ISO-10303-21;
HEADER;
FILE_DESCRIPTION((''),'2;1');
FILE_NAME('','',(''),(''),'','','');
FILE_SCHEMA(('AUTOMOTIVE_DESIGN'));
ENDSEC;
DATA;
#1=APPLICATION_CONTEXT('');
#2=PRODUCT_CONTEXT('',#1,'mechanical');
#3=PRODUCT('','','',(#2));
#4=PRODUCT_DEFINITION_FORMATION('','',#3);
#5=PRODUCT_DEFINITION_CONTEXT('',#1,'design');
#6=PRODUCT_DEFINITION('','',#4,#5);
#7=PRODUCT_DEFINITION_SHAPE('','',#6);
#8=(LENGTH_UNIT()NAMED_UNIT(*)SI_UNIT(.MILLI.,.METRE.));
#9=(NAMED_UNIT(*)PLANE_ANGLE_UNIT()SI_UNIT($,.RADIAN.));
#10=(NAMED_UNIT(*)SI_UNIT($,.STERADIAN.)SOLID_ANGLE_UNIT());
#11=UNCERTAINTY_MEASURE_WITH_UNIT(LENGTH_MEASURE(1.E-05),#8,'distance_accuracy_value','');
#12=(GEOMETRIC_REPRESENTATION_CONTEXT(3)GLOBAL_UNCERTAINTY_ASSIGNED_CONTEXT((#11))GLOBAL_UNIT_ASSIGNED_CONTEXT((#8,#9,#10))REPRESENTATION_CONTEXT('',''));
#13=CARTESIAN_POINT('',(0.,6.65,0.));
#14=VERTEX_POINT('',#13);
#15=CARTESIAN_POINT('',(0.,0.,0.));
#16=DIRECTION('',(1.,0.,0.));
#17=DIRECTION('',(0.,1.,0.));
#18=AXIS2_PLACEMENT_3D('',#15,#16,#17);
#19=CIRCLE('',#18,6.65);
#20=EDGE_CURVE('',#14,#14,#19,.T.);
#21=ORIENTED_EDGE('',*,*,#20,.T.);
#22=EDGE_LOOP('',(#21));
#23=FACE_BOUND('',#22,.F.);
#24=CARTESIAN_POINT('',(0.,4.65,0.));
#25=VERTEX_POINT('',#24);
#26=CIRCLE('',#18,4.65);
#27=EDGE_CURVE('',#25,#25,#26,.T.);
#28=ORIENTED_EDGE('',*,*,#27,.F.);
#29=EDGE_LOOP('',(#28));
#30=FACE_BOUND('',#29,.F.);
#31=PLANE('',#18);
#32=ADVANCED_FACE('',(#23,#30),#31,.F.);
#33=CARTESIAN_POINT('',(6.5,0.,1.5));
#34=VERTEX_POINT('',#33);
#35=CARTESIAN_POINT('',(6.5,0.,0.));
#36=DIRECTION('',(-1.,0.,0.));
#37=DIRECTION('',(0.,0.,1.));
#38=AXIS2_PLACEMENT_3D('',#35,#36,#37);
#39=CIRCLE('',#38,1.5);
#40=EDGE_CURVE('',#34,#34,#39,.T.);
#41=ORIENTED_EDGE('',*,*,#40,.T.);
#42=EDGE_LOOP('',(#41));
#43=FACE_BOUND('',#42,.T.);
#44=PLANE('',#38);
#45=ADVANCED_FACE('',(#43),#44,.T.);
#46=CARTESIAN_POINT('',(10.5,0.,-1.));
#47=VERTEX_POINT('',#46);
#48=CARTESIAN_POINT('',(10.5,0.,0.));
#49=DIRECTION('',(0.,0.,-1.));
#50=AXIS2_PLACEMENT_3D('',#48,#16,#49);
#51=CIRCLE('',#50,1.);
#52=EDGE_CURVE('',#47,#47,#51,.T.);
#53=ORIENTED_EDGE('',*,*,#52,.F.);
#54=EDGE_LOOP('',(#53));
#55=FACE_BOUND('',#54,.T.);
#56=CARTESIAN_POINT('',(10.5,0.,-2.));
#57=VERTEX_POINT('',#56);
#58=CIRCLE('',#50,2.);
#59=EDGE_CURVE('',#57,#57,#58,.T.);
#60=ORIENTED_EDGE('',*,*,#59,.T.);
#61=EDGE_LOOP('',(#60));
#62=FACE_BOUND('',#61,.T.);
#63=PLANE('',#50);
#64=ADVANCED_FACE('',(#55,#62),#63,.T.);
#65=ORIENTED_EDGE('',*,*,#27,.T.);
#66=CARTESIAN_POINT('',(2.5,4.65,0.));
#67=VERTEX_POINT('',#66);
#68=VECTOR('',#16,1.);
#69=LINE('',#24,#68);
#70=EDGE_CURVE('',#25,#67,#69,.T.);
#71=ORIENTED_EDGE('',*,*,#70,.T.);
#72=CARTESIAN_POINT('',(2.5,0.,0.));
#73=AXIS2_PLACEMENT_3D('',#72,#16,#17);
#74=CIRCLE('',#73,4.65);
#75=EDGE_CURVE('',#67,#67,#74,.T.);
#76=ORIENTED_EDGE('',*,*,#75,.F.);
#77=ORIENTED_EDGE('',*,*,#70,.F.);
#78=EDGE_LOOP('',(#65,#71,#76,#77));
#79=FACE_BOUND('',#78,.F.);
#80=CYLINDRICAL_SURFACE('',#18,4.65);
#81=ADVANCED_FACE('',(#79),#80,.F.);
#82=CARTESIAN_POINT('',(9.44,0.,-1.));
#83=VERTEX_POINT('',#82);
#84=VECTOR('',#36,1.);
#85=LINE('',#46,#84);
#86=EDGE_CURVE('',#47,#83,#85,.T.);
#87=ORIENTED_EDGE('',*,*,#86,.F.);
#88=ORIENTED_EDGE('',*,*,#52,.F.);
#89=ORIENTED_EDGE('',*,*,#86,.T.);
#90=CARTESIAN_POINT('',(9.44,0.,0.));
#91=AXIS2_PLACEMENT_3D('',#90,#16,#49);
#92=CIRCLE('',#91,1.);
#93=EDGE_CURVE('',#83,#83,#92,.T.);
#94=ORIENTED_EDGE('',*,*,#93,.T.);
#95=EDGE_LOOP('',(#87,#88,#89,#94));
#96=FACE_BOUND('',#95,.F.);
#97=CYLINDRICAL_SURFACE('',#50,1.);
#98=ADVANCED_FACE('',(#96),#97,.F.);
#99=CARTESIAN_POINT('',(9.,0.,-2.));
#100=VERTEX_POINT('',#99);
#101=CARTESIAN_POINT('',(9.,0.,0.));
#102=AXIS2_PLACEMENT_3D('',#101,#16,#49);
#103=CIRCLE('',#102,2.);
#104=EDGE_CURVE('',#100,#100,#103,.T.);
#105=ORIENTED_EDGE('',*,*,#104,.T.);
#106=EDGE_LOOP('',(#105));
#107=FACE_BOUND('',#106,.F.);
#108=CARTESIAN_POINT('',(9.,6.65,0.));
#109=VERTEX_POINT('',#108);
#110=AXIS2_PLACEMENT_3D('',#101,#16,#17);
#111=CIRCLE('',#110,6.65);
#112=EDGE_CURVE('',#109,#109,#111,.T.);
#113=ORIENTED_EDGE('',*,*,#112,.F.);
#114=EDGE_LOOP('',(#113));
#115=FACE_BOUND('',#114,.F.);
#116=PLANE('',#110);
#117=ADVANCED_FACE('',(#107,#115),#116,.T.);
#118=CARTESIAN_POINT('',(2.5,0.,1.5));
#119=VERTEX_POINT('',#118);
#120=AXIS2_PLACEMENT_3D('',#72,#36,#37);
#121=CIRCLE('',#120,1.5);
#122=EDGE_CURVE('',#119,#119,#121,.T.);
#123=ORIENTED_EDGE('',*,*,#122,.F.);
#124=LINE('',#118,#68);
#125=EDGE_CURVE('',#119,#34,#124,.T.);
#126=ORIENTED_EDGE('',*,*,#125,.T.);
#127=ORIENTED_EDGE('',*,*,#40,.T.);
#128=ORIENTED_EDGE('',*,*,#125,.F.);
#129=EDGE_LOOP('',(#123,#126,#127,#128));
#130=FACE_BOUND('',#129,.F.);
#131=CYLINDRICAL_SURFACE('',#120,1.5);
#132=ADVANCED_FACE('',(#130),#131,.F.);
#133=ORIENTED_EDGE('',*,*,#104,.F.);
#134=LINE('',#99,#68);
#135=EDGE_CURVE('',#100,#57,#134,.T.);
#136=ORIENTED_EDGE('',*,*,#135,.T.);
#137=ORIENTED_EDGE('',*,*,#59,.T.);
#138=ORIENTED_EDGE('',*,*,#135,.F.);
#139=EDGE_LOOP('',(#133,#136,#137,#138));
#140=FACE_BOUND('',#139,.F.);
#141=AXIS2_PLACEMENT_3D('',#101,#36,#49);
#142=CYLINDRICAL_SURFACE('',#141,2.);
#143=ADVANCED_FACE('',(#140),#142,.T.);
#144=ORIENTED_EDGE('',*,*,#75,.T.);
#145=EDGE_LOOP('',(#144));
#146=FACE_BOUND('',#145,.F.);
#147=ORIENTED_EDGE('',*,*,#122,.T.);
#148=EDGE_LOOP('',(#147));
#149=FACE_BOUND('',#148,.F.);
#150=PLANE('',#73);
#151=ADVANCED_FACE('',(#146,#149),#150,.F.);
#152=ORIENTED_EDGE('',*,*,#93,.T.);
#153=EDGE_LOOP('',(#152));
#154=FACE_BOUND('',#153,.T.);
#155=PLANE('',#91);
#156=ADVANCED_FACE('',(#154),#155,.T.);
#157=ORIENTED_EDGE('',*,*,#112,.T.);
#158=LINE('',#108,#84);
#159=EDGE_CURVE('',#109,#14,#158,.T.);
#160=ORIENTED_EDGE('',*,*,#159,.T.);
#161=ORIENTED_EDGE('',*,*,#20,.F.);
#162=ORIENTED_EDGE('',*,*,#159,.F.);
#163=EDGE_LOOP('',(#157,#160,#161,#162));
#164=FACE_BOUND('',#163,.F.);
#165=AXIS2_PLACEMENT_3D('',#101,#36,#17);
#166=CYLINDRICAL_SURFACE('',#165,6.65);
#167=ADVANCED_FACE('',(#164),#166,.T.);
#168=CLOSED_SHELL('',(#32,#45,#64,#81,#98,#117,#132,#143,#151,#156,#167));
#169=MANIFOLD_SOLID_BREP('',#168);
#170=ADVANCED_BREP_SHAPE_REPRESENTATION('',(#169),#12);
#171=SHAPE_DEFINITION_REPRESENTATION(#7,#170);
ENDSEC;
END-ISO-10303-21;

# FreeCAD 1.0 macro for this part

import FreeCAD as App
import Part
import Sketcher

V = App.Vector


def add_polygon(sketch, points):
    """Adds a closed chain of lines whose ends are joined by coincident constraints."""
    first, n = sketch.GeometryCount, len(points)
    for a, b in zip(points, points[1:] + points[:1]):
        sketch.addGeometry(Part.LineSegment(App.Vector(*a, 0), App.Vector(*b, 0)), False)
    for i in range(n):
        sketch.addConstraint(Sketcher.Constraint("Coincident", first + i, 2, first + (i + 1) % n, 1))

doc = App.newDocument("Part")
params = doc.addObject("Spreadsheet::Sheet", "Params")
for row, (alias, value) in enumerate([
    ("sketch1_width", "9 mm"),
    ("sketch1_height", "2 mm"),
    ("sketch1_width2", "2.5 mm"),
    ("sketch1_height2", "6.65 mm"),
    ("revolution_angle", "360 deg"),
    ("sketch2_diameter", "4 mm"),
    ("pad1_length", "1.5 mm"),
    ("sketch3_diameter", "3 mm"),
    ("pocket1_length", "4 mm"),
    ("sketch4_diameter", "2 mm"),
    ("pocket2_length", "1.06 mm"),
], start=1):
    params.set(f"A{row}", alias)
    params.set(f"B{row}", "=" + value)
    params.setAlias(f"B{row}", alias)

body = doc.addObject("PartDesign::Body", "Body")

sketch1 = body.newObject("Sketcher::SketchObject", "Sketch")
sketch1.AttachmentSupport = (doc.getObject("XY_Plane"), [""])
sketch1.MapMode = "FlatFace"
add_polygon(sketch1, [(2.5, 4.7), (2.5, 0), (9, 0), (9, 6.7), (0, 6.7), (0, 4.7)])
sketch1.addConstraint(Sketcher.Constraint("Vertical", 0))
sketch1.addConstraint(Sketcher.Constraint("Horizontal", 1))
sketch1.addConstraint(Sketcher.Constraint("Vertical", 2))
sketch1.addConstraint(Sketcher.Constraint("Horizontal", 3))
sketch1.addConstraint(Sketcher.Constraint("Vertical", 4))
sketch1.addConstraint(Sketcher.Constraint("Horizontal", 5))
sketch1.addConstraint(Sketcher.Constraint("PointOnObject", 0, 2, -1))
sketch1.addConstraint(Sketcher.Constraint("PointOnObject", 3, 2, -2))
sketch1.addConstraint(Sketcher.Constraint("DistanceX", 3, 2, 3, 1, 9.0))
sketch1.addConstraint(Sketcher.Constraint("DistanceY", 4, 2, 4, 1, 2.0))
sketch1.addConstraint(Sketcher.Constraint("DistanceX", 5, 1, 5, 2, 2.5))
sketch1.addConstraint(Sketcher.Constraint("DistanceY", 2, 1, 2, 2, 6.65))
sketch1.setExpression("Constraints[14]", "Params.sketch1_width")
sketch1.setExpression("Constraints[15]", "Params.sketch1_height")
sketch1.setExpression("Constraints[16]", "Params.sketch1_width2")
sketch1.setExpression("Constraints[17]", "Params.sketch1_height2")
revolution = body.newObject("PartDesign::Revolution", "Revolution")
revolution.Profile = sketch1
revolution.ReferenceAxis = (sketch1, ["H_Axis"])
revolution.setExpression("Angle", "Params.revolution_angle")

sketch2 = body.newObject("Sketcher::SketchObject", "Sketch001")
sketch2.AttachmentSupport = (doc.getObject("YZ_Plane"), [""])
sketch2.MapMode = "FlatFace"
sketch2.AttachmentOffset = App.Placement(V(0, 0, 9), App.Rotation())
sketch2.addGeometry(Part.Circle(V(0, 0, 0), V(0, 0, 1), 2), False)
sketch2.addConstraint(Sketcher.Constraint("Coincident", 0, 3, -1, 1))
sketch2.addConstraint(Sketcher.Constraint("Diameter", 0, 4.0))
sketch2.setExpression("Constraints[1]", "Params.sketch2_diameter")
pad1 = body.newObject("PartDesign::Pad", "Pad")
pad1.Profile = sketch2
pad1.setExpression("Length", "Params.pad1_length")

sketch3 = body.newObject("Sketcher::SketchObject", "Sketch002")
sketch3.AttachmentSupport = (doc.getObject("YZ_Plane"), [""])
sketch3.MapMode = "FlatFace"
sketch3.AttachmentOffset = App.Placement(V(0, 0, 2.5), App.Rotation())
sketch3.addGeometry(Part.Circle(V(0, 0, 0), V(0, 0, 1), 1.5), False)
sketch3.addConstraint(Sketcher.Constraint("Coincident", 0, 3, -1, 1))
sketch3.addConstraint(Sketcher.Constraint("Diameter", 0, 3.0))
sketch3.setExpression("Constraints[1]", "Params.sketch3_diameter")
pocket1 = body.newObject("PartDesign::Pocket", "Pocket")
pocket1.Profile = sketch3
pocket1.setExpression("Length", "Params.pocket1_length")
pocket1.Reversed = True

sketch4 = body.newObject("Sketcher::SketchObject", "Sketch003")
sketch4.AttachmentSupport = (doc.getObject("YZ_Plane"), [""])
sketch4.MapMode = "FlatFace"
sketch4.AttachmentOffset = App.Placement(V(0, 0, 10.5), App.Rotation())
sketch4.addGeometry(Part.Circle(V(0, 0, 0), V(0, 0, 1), 1), False)
sketch4.addConstraint(Sketcher.Constraint("Coincident", 0, 3, -1, 1))
sketch4.addConstraint(Sketcher.Constraint("Diameter", 0, 2.0))
sketch4.setExpression("Constraints[1]", "Params.sketch4_diameter")
pocket2 = body.newObject("PartDesign::Pocket", "Pocket001")
pocket2.Profile = sketch4
pocket2.setExpression("Length", "Params.pocket2_length")

doc.recompute()
